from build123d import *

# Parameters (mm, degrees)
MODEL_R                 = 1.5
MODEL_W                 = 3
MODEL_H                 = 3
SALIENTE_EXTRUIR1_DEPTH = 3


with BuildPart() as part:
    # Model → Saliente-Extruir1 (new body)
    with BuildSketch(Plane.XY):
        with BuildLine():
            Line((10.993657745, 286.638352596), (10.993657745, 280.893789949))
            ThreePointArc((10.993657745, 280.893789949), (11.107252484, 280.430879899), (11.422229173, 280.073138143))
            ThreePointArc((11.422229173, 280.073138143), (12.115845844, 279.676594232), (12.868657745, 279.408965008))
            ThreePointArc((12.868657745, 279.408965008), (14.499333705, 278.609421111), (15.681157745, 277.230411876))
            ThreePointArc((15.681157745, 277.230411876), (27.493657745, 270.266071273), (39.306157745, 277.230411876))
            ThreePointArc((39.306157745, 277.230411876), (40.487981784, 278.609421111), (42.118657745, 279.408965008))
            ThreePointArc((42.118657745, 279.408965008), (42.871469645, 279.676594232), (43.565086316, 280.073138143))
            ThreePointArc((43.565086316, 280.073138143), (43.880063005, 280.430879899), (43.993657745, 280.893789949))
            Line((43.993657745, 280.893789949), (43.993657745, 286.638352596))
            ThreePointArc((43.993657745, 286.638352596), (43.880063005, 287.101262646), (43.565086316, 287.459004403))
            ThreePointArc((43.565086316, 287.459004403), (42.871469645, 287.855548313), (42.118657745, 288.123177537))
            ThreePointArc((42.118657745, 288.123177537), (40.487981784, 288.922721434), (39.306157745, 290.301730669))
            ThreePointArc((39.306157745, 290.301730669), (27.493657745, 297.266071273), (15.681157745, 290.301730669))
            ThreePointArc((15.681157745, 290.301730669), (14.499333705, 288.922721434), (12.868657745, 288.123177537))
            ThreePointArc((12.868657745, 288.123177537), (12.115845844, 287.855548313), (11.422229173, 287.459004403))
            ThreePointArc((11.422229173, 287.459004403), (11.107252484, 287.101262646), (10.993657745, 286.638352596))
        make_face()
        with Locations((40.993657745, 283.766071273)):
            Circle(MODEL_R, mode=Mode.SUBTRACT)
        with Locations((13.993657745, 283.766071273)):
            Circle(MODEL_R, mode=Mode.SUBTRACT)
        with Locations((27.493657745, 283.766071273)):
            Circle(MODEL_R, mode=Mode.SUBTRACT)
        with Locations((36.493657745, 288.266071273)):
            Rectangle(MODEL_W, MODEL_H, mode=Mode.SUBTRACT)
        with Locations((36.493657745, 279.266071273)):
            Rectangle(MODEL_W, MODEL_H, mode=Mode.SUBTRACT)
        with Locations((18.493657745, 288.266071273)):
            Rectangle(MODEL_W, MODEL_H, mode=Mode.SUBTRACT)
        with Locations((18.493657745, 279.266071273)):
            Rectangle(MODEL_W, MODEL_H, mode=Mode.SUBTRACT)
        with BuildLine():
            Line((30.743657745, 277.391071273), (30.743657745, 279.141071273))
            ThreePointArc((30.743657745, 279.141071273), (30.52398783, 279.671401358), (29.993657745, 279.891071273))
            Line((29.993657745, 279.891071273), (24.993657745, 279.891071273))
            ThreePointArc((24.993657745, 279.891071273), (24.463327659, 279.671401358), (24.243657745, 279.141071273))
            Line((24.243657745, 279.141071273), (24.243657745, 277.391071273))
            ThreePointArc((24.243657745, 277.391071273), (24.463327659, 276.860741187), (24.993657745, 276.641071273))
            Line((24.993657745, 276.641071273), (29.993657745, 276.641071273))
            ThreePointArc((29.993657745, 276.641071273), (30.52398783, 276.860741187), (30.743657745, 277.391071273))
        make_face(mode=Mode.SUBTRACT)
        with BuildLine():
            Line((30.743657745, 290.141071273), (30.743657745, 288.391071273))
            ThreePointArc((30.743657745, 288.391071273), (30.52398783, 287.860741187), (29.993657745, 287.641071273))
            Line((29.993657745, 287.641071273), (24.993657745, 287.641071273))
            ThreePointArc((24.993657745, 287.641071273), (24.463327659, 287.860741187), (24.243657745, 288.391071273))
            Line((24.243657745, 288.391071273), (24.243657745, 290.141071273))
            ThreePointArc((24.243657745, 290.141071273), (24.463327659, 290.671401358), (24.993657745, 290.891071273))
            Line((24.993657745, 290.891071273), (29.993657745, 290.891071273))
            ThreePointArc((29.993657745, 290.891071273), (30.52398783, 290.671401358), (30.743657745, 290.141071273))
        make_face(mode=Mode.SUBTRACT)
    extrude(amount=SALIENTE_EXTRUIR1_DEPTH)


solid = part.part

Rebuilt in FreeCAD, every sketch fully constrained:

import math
import FreeCAD as App
import Part
import Sketcher
Q = App.Units.Quantity

doc = App.newDocument("Part")
params = doc.addObject("Spreadsheet::Sheet", "Params")
for row, (alias, value) in enumerate([
    ("sketch1_diameter", "3 mm"),
    ("sketch1_radius", "1 mm"),
    ("sketch1_radius2", "4.5 mm"),
    ("sketch1_radius3", "13.5 mm"),
    ("sketch1_width", "3 mm"),
    ("pad1_length", "3 mm"),
], start=1):
    params.set(f"A{row}", alias)
    params.set(f"B{row}", "=" + value)
    params.setAlias(f"B{row}", alias)

body = doc.addObject("PartDesign::Body", "Body")

# Sketch on XY plane
sketch1 = body.newObject("Sketcher::SketchObject", "Sketch")
sketch1.AttachmentSupport = (doc.getObject("XY_Plane"), [""])
sketch1.MapMode = "FlatFace"
sketch1.addGeometry(Part.LineSegment(App.Vector(11, 286.6, 0), App.Vector(11, 280.9, 0)), False)
sketch1.addGeometry(Part.ArcOfCircle(Part.Circle(App.Vector(12, 280.9, 0), App.Vector(0, 0, 1), 1), math.radians(180), math.radians(235)), False)
sketch1.addGeometry(Part.ArcOfCircle(Part.Circle(App.Vector(14, 283.8, 0), App.Vector(0, 0, 1), 4.5), math.radians(-125), math.radians(-104)), False)
sketch1.addGeometry(Part.ArcOfCircle(Part.Circle(App.Vector(11.7, 275.1, 0), App.Vector(0, 0, 1), 4.5), math.radians(29), math.radians(76)), False)
sketch1.addGeometry(Part.ArcOfCircle(Part.Circle(App.Vector(27.5, 283.8, 0), App.Vector(0, 0, 1), 13.5), math.radians(-151), math.radians(-29)), False)
sketch1.addGeometry(Part.ArcOfCircle(Part.Circle(App.Vector(43.2, 275.1, 0), App.Vector(0, 0, 1), 4.5), math.radians(104), math.radians(151)), False)
sketch1.addGeometry(Part.ArcOfCircle(Part.Circle(App.Vector(41, 283.8, 0), App.Vector(0, 0, 1), 4.5), math.radians(-76), math.radians(-55)), False)
sketch1.addGeometry(Part.ArcOfCircle(Part.Circle(App.Vector(43, 280.9, 0), App.Vector(0, 0, 1), 1), math.radians(-55), math.radians(0)), False)
sketch1.addGeometry(Part.LineSegment(App.Vector(44, 280.9, 0), App.Vector(44, 286.6, 0)), False)
sketch1.addGeometry(Part.ArcOfCircle(Part.Circle(App.Vector(43, 286.6, 0), App.Vector(0, 0, 1), 1), math.radians(0), math.radians(55)), False)
sketch1.addGeometry(Part.ArcOfCircle(Part.Circle(App.Vector(41, 283.8, 0), App.Vector(0, 0, 1), 4.5), math.radians(55), math.radians(76)), False)
sketch1.addGeometry(Part.ArcOfCircle(Part.Circle(App.Vector(43.2, 292.5, 0), App.Vector(0, 0, 1), 4.5), math.radians(-151), math.radians(-104)), False)
sketch1.addGeometry(Part.ArcOfCircle(Part.Circle(App.Vector(27.5, 283.8, 0), App.Vector(0, 0, 1), 13.5), math.radians(29), math.radians(151)), False)
sketch1.addGeometry(Part.ArcOfCircle(Part.Circle(App.Vector(11.7, 292.5, 0), App.Vector(0, 0, 1), 4.5), math.radians(-76), math.radians(-29)), False)
sketch1.addGeometry(Part.ArcOfCircle(Part.Circle(App.Vector(14, 283.8, 0), App.Vector(0, 0, 1), 4.5), math.radians(104), math.radians(125)), False)
sketch1.addGeometry(Part.ArcOfCircle(Part.Circle(App.Vector(12, 286.6, 0), App.Vector(0, 0, 1), 1), math.radians(125), math.radians(180)), False)
sketch1.addGeometry(Part.LineSegment(App.Vector(20, 277.8, 0), App.Vector(17, 277.8, 0)), False)
sketch1.addGeometry(Part.LineSegment(App.Vector(17, 277.8, 0), App.Vector(17, 280.8, 0)), False)
sketch1.addGeometry(Part.LineSegment(App.Vector(17, 280.8, 0), App.Vector(20, 280.8, 0)), False)
sketch1.addGeometry(Part.LineSegment(App.Vector(20, 280.8, 0), App.Vector(20, 277.8, 0)), False)
sketch1.addGeometry(Part.LineSegment(App.Vector(30.7, 279.1, 0), App.Vector(30.7, 277.4, 0)), False)
sketch1.addGeometry(Part.ArcOfCircle(Part.Circle(App.Vector(30, 277.4, 0), App.Vector(0, 0, 1), 0.8), math.radians(-90), math.radians(0)), False)
sketch1.addGeometry(Part.LineSegment(App.Vector(30, 276.6, 0), App.Vector(25, 276.6, 0)), False)
sketch1.addGeometry(Part.ArcOfCircle(Part.Circle(App.Vector(25, 277.4, 0), App.Vector(0, 0, 1), 0.8), math.radians(180), math.radians(270)), False)
sketch1.addGeometry(Part.LineSegment(App.Vector(24.2, 277.4, 0), App.Vector(24.2, 279.1, 0)), False)
sketch1.addGeometry(Part.ArcOfCircle(Part.Circle(App.Vector(25, 279.1, 0), App.Vector(0, 0, 1), 0.8), math.radians(90), math.radians(180)), False)
sketch1.addGeometry(Part.LineSegment(App.Vector(25, 279.9, 0), App.Vector(30, 279.9, 0)), False)
sketch1.addGeometry(Part.ArcOfCircle(Part.Circle(App.Vector(30, 279.1, 0), App.Vector(0, 0, 1), 0.8), math.radians(0), math.radians(90)), False)
sketch1.addGeometry(Part.LineSegment(App.Vector(38, 277.8, 0), App.Vector(35, 277.8, 0)), False)
sketch1.addGeometry(Part.LineSegment(App.Vector(35, 277.8, 0), App.Vector(35, 280.8, 0)), False)
sketch1.addGeometry(Part.LineSegment(App.Vector(35, 280.8, 0), App.Vector(38, 280.8, 0)), False)
sketch1.addGeometry(Part.LineSegment(App.Vector(38, 280.8, 0), App.Vector(38, 277.8, 0)), False)
sketch1.addGeometry(Part.Circle(App.Vector(14, 283.8, 0), App.Vector(0, 0, 1), 1.5), False)
sketch1.addGeometry(Part.LineSegment(App.Vector(20, 286.8, 0), App.Vector(17, 286.8, 0)), False)
sketch1.addGeometry(Part.LineSegment(App.Vector(17, 286.8, 0), App.Vector(17, 289.8, 0)), False)
sketch1.addGeometry(Part.LineSegment(App.Vector(17, 289.8, 0), App.Vector(20, 289.8, 0)), False)
sketch1.addGeometry(Part.LineSegment(App.Vector(20, 289.8, 0), App.Vector(20, 286.8, 0)), False)
sketch1.addGeometry(Part.Circle(App.Vector(27.5, 283.8, 0), App.Vector(0, 0, 1), 1.5), False)
sketch1.addGeometry(Part.Circle(App.Vector(41, 283.8, 0), App.Vector(0, 0, 1), 1.5), False)
sketch1.addGeometry(Part.ArcOfCircle(Part.Circle(App.Vector(30, 290.1, 0), App.Vector(0, 0, 1), 0.8), math.radians(0), math.radians(90)), False)
sketch1.addGeometry(Part.LineSegment(App.Vector(30.7, 290.1, 0), App.Vector(30.7, 288.4, 0)), False)
sketch1.addGeometry(Part.ArcOfCircle(Part.Circle(App.Vector(30, 288.4, 0), App.Vector(0, 0, 1), 0.8), math.radians(-90), math.radians(0)), False)
sketch1.addGeometry(Part.LineSegment(App.Vector(30, 287.6, 0), App.Vector(25, 287.6, 0)), False)
sketch1.addGeometry(Part.ArcOfCircle(Part.Circle(App.Vector(25, 288.4, 0), App.Vector(0, 0, 1), 0.8), math.radians(180), math.radians(270)), False)
sketch1.addGeometry(Part.LineSegment(App.Vector(24.2, 288.4, 0), App.Vector(24.2, 290.1, 0)), False)
sketch1.addGeometry(Part.ArcOfCircle(Part.Circle(App.Vector(25, 290.1, 0), App.Vector(0, 0, 1), 0.8), math.radians(90), math.radians(180)), False)
sketch1.addGeometry(Part.LineSegment(App.Vector(25, 290.9, 0), App.Vector(30, 290.9, 0)), False)
sketch1.addGeometry(Part.LineSegment(App.Vector(38, 286.8, 0), App.Vector(35, 286.8, 0)), False)
sketch1.addGeometry(Part.LineSegment(App.Vector(35, 286.8, 0), App.Vector(35, 289.8, 0)), False)
sketch1.addGeometry(Part.LineSegment(App.Vector(35, 289.8, 0), App.Vector(38, 289.8, 0)), False)
sketch1.addGeometry(Part.LineSegment(App.Vector(38, 289.8, 0), App.Vector(38, 286.8, 0)), False)
sketch1.addConstraint(Sketcher.Constraint("Tangent", 0, 2, 1, 1))
sketch1.addConstraint(Sketcher.Constraint("Tangent", 1, 2, 2, 1))
sketch1.addConstraint(Sketcher.Constraint("Tangent", 2, 2, 3, 2))
sketch1.addConstraint(Sketcher.Constraint("Tangent", 3, 1, 4, 1))
sketch1.addConstraint(Sketcher.Constraint("Tangent", 4, 2, 5, 2))
sketch1.addConstraint(Sketcher.Constraint("Tangent", 5, 1, 6, 1))
sketch1.addConstraint(Sketcher.Constraint("Tangent", 6, 2, 7, 1))
sketch1.addConstraint(Sketcher.Constraint("Tangent", 7, 2, 8, 1))
sketch1.addConstraint(Sketcher.Constraint("Tangent", 8, 2, 9, 1))
sketch1.addConstraint(Sketcher.Constraint("Tangent", 9, 2, 10, 1))
sketch1.addConstraint(Sketcher.Constraint("Tangent", 10, 2, 11, 2))
sketch1.addConstraint(Sketcher.Constraint("Tangent", 11, 1, 12, 1))
sketch1.addConstraint(Sketcher.Constraint("Tangent", 12, 2, 13, 2))
sketch1.addConstraint(Sketcher.Constraint("Tangent", 13, 1, 14, 1))
sketch1.addConstraint(Sketcher.Constraint("Tangent", 14, 2, 15, 1))
sketch1.addConstraint(Sketcher.Constraint("Tangent", 15, 2, 0, 1))
sketch1.addConstraint(Sketcher.Constraint("Coincident", 16, 2, 17, 1))
sketch1.addConstraint(Sketcher.Constraint("Coincident", 17, 2, 18, 1))
sketch1.addConstraint(Sketcher.Constraint("Coincident", 18, 2, 19, 1))
sketch1.addConstraint(Sketcher.Constraint("Coincident", 19, 2, 16, 1))
sketch1.addConstraint(Sketcher.Constraint("Tangent", 20, 2, 21, 2))
sketch1.addConstraint(Sketcher.Constraint("Tangent", 21, 1, 22, 1))
sketch1.addConstraint(Sketcher.Constraint("Tangent", 22, 2, 23, 2))
sketch1.addConstraint(Sketcher.Constraint("Tangent", 23, 1, 24, 1))
sketch1.addConstraint(Sketcher.Constraint("Tangent", 24, 2, 25, 2))
sketch1.addConstraint(Sketcher.Constraint("Tangent", 25, 1, 26, 1))
sketch1.addConstraint(Sketcher.Constraint("Tangent", 26, 2, 27, 2))
sketch1.addConstraint(Sketcher.Constraint("Tangent", 27, 1, 20, 1))
sketch1.addConstraint(Sketcher.Constraint("Coincident", 28, 2, 29, 1))
sketch1.addConstraint(Sketcher.Constraint("Coincident", 29, 2, 30, 1))
sketch1.addConstraint(Sketcher.Constraint("Coincident", 30, 2, 31, 1))
sketch1.addConstraint(Sketcher.Constraint("Coincident", 31, 2, 28, 1))
sketch1.addConstraint(Sketcher.Constraint("Coincident", 33, 2, 34, 1))
sketch1.addConstraint(Sketcher.Constraint("Coincident", 34, 2, 35, 1))
sketch1.addConstraint(Sketcher.Constraint("Coincident", 35, 2, 36, 1))
sketch1.addConstraint(Sketcher.Constraint("Coincident", 36, 2, 33, 1))
sketch1.addConstraint(Sketcher.Constraint("Tangent", 39, 1, 40, 1))
sketch1.addConstraint(Sketcher.Constraint("Tangent", 40, 2, 41, 2))
sketch1.addConstraint(Sketcher.Constraint("Tangent", 41, 1, 42, 1))
sketch1.addConstraint(Sketcher.Constraint("Tangent", 42, 2, 43, 2))
sketch1.addConstraint(Sketcher.Constraint("Tangent", 43, 1, 44, 1))
sketch1.addConstraint(Sketcher.Constraint("Tangent", 44, 2, 45, 2))
sketch1.addConstraint(Sketcher.Constraint("Tangent", 45, 1, 46, 1))
sketch1.addConstraint(Sketcher.Constraint("Tangent", 46, 2, 39, 2))
sketch1.addConstraint(Sketcher.Constraint("Coincident", 47, 2, 48, 1))
sketch1.addConstraint(Sketcher.Constraint("Coincident", 48, 2, 49, 1))
sketch1.addConstraint(Sketcher.Constraint("Coincident", 49, 2, 50, 1))
sketch1.addConstraint(Sketcher.Constraint("Coincident", 50, 2, 47, 1))
sketch1.addConstraint(Sketcher.Constraint("Vertical", 0))
sketch1.addConstraint(Sketcher.Constraint("Vertical", 8))
sketch1.addConstraint(Sketcher.Constraint("Horizontal", 16))
sketch1.addConstraint(Sketcher.Constraint("Vertical", 17))
sketch1.addConstraint(Sketcher.Constraint("Horizontal", 18))
sketch1.addConstraint(Sketcher.Constraint("Vertical", 19))
sketch1.addConstraint(Sketcher.Constraint("Vertical", 20))
sketch1.addConstraint(Sketcher.Constraint("Horizontal", 22))
sketch1.addConstraint(Sketcher.Constraint("Vertical", 24))
sketch1.addConstraint(Sketcher.Constraint("Horizontal", 26))
sketch1.addConstraint(Sketcher.Constraint("Horizontal", 28))
sketch1.addConstraint(Sketcher.Constraint("Vertical", 29))
sketch1.addConstraint(Sketcher.Constraint("Horizontal", 30))
sketch1.addConstraint(Sketcher.Constraint("Vertical", 31))
sketch1.addConstraint(Sketcher.Constraint("Horizontal", 33))
sketch1.addConstraint(Sketcher.Constraint("Vertical", 34))
sketch1.addConstraint(Sketcher.Constraint("Horizontal", 35))
sketch1.addConstraint(Sketcher.Constraint("Vertical", 36))
sketch1.addConstraint(Sketcher.Constraint("Vertical", 40))
sketch1.addConstraint(Sketcher.Constraint("Horizontal", 42))
sketch1.addConstraint(Sketcher.Constraint("Vertical", 44))
sketch1.addConstraint(Sketcher.Constraint("Horizontal", 46))
sketch1.addConstraint(Sketcher.Constraint("Horizontal", 47))
sketch1.addConstraint(Sketcher.Constraint("Vertical", 48))
sketch1.addConstraint(Sketcher.Constraint("Horizontal", 49))
sketch1.addConstraint(Sketcher.Constraint("Vertical", 50))
sketch1.addConstraint(Sketcher.Constraint("Coincident", 10, 3, 6, 3))
sketch1.addConstraint(Sketcher.Constraint("Coincident", 12, 3, 4, 3))
sketch1.addConstraint(Sketcher.Constraint("Coincident", 14, 3, 2, 3))
sketch1.addConstraint(Sketcher.Constraint("Coincident", 32, 3, 2, 3))
sketch1.addConstraint(Sketcher.Constraint("Coincident", 37, 3, 4, 3))
sketch1.addConstraint(Sketcher.Constraint("Coincident", 38, 3, 6, 3))
sketch1.addConstraint(Sketcher.Constraint("Equal", 2, 3))
sketch1.addConstraint(Sketcher.Constraint("Equal", 3, 5))
sketch1.addConstraint(Sketcher.Constraint("Equal", 5, 6))
sketch1.addConstraint(Sketcher.Constraint("Equal", 1, 7))
sketch1.addConstraint(Sketcher.Constraint("Equal", 7, 9))
sketch1.addConstraint(Sketcher.Constraint("Equal", 6, 10))
sketch1.addConstraint(Sketcher.Constraint("Equal", 10, 11))
sketch1.addConstraint(Sketcher.Constraint("Equal", 4, 12))
sketch1.addConstraint(Sketcher.Constraint("Equal", 11, 13))
sketch1.addConstraint(Sketcher.Constraint("Equal", 13, 14))
sketch1.addConstraint(Sketcher.Constraint("Equal", 9, 15))
sketch1.addConstraint(Sketcher.Constraint("Equal", 21, 23))
sketch1.addConstraint(Sketcher.Constraint("Equal", 23, 25))
sketch1.addConstraint(Sketcher.Constraint("Equal", 25, 27))
sketch1.addConstraint(Sketcher.Constraint("Equal", 32, 37))
sketch1.addConstraint(Sketcher.Constraint("Equal", 37, 38))
sketch1.addConstraint(Sketcher.Constraint("Equal", 27, 39))
sketch1.addConstraint(Sketcher.Constraint("Equal", 39, 41))
sketch1.addConstraint(Sketcher.Constraint("Equal", 41, 43))
sketch1.addConstraint(Sketcher.Constraint("Equal", 43, 45))
sketch1.addConstraint(Sketcher.Constraint("Horizontal", 2, 3, 4, 3))
sketch1.addConstraint(Sketcher.Constraint("Horizontal", 3, 3, 5, 3))
sketch1.addConstraint(Sketcher.Constraint("Horizontal", 4, 3, 6, 3))
sketch1.addConstraint(Sketcher.Constraint("Horizontal", 1, 3, 7, 3))
sketch1.addConstraint(Sketcher.Constraint("Horizontal", 19, 2, 28, 2))
sketch1.addConstraint(Sketcher.Constraint("Horizontal", 18, 2, 29, 2))
sketch1.addConstraint(Sketcher.Constraint("Horizontal", 36, 2, 47, 2))
sketch1.addConstraint(Sketcher.Constraint("Horizontal", 35, 2, 48, 2))
sketch1.addConstraint(Sketcher.Constraint("Vertical", 27, 3, 39, 3))
sketch1.addConstraint(Sketcher.Constraint("Vertical", 25, 3, 43, 3))
sketch1.addConstraint(Sketcher.Constraint("Vertical", 17, 2, 33, 2))
sketch1.addConstraint(Sketcher.Constraint("Vertical", 19, 2, 35, 2))
sketch1.addConstraint(Sketcher.Constraint("Vertical", 29, 2, 47, 2))
sketch1.addConstraint(Sketcher.Constraint("Vertical", 31, 2, 49, 2))
sketch1.addConstraint(Sketcher.Constraint("Equal", 18, 28))
sketch1.addConstraint(Sketcher.Constraint("Equal", 49, 17))
sketch1.addConstraint(Sketcher.Constraint("Equal", 31, 34))
sketch1.addConstraint(Sketcher.Constraint("Equal", 24, 40))
sketch1.addConstraint(Sketcher.Constraint("Diameter", 32, Q("3 mm")))
sketch1.addConstraint(Sketcher.Constraint("Radius", 1, Q("1 mm")))
sketch1.addConstraint(Sketcher.Constraint("Radius", 2, Q("4.5 mm")))
sketch1.addConstraint(Sketcher.Constraint("Radius", 4, Q("13.5 mm")))
sketch1.addConstraint(Sketcher.Constraint("DistanceX", 16, 2, 16, 1, Q("3 mm")))
sketch1.addConstraint(Sketcher.Constraint("DistanceX", 22, 2, 22, 1, Q("5 mm")))
sketch1.addConstraint(Sketcher.Constraint("Radius", 21, Q("0.75 mm")))
sketch1.addConstraint(Sketcher.Constraint("DistanceY", 20, 2, 20, 1, Q("1.75 mm")))
sketch1.addConstraint(Sketcher.Constraint("DistanceY", 0, 2, 0, 1, Q("5.744563 mm")))
sketch1.addConstraint(Sketcher.Constraint("DistanceY", -1, 1, 1, 3, Q("280.89379 mm")))
sketch1.addConstraint(Sketcher.Constraint("DistanceY", -1, 1, 3, 3, Q("275.051859 mm")))
sketch1.addConstraint(Sketcher.Constraint("DistanceY", -1, 1, 21, 3, Q("277.391071 mm")))
sketch1.addConstraint(Sketcher.Constraint("DistanceY", -1, 1, 39, 3, Q("290.141071 mm")))
sketch1.addConstraint(Sketcher.Constraint("DistanceX", -1, 1, 1, 2, Q("11.422229 mm")))
sketch1.addConstraint(Sketcher.Constraint("DistanceY", -1, 1, 16, 2, Q("277.766071 mm")))
sketch1.addConstraint(Sketcher.Constraint("DistanceY", -1, 1, 33, 2, Q("286.766071 mm")))
sketch1.addConstraint(Sketcher.Constraint("DistanceX", -1, 1, 21, 3, Q("29.993658 mm")))
sketch1.addConstraint(Sketcher.Constraint("DistanceX", -1, 1, 16, 2, Q("16.993658 mm")))
sketch1.addConstraint(Sketcher.Constraint("DistanceX", -1, 1, 28, 2, Q("34.993658 mm")))
sketch1.setExpression("Constraints[118]", "Params.sketch1_diameter")
sketch1.setExpression("Constraints[119]", "Params.sketch1_radius")
sketch1.setExpression("Constraints[120]", "Params.sketch1_radius2")
sketch1.setExpression("Constraints[121]", "Params.sketch1_radius3")
sketch1.setExpression("Constraints[122]", "Params.sketch1_width")
pad1 = body.newObject("PartDesign::Pad", "Pad")
pad1.Profile = sketch1
pad1.setExpression("Length", "Params.pad1_length")

doc.recompute()
